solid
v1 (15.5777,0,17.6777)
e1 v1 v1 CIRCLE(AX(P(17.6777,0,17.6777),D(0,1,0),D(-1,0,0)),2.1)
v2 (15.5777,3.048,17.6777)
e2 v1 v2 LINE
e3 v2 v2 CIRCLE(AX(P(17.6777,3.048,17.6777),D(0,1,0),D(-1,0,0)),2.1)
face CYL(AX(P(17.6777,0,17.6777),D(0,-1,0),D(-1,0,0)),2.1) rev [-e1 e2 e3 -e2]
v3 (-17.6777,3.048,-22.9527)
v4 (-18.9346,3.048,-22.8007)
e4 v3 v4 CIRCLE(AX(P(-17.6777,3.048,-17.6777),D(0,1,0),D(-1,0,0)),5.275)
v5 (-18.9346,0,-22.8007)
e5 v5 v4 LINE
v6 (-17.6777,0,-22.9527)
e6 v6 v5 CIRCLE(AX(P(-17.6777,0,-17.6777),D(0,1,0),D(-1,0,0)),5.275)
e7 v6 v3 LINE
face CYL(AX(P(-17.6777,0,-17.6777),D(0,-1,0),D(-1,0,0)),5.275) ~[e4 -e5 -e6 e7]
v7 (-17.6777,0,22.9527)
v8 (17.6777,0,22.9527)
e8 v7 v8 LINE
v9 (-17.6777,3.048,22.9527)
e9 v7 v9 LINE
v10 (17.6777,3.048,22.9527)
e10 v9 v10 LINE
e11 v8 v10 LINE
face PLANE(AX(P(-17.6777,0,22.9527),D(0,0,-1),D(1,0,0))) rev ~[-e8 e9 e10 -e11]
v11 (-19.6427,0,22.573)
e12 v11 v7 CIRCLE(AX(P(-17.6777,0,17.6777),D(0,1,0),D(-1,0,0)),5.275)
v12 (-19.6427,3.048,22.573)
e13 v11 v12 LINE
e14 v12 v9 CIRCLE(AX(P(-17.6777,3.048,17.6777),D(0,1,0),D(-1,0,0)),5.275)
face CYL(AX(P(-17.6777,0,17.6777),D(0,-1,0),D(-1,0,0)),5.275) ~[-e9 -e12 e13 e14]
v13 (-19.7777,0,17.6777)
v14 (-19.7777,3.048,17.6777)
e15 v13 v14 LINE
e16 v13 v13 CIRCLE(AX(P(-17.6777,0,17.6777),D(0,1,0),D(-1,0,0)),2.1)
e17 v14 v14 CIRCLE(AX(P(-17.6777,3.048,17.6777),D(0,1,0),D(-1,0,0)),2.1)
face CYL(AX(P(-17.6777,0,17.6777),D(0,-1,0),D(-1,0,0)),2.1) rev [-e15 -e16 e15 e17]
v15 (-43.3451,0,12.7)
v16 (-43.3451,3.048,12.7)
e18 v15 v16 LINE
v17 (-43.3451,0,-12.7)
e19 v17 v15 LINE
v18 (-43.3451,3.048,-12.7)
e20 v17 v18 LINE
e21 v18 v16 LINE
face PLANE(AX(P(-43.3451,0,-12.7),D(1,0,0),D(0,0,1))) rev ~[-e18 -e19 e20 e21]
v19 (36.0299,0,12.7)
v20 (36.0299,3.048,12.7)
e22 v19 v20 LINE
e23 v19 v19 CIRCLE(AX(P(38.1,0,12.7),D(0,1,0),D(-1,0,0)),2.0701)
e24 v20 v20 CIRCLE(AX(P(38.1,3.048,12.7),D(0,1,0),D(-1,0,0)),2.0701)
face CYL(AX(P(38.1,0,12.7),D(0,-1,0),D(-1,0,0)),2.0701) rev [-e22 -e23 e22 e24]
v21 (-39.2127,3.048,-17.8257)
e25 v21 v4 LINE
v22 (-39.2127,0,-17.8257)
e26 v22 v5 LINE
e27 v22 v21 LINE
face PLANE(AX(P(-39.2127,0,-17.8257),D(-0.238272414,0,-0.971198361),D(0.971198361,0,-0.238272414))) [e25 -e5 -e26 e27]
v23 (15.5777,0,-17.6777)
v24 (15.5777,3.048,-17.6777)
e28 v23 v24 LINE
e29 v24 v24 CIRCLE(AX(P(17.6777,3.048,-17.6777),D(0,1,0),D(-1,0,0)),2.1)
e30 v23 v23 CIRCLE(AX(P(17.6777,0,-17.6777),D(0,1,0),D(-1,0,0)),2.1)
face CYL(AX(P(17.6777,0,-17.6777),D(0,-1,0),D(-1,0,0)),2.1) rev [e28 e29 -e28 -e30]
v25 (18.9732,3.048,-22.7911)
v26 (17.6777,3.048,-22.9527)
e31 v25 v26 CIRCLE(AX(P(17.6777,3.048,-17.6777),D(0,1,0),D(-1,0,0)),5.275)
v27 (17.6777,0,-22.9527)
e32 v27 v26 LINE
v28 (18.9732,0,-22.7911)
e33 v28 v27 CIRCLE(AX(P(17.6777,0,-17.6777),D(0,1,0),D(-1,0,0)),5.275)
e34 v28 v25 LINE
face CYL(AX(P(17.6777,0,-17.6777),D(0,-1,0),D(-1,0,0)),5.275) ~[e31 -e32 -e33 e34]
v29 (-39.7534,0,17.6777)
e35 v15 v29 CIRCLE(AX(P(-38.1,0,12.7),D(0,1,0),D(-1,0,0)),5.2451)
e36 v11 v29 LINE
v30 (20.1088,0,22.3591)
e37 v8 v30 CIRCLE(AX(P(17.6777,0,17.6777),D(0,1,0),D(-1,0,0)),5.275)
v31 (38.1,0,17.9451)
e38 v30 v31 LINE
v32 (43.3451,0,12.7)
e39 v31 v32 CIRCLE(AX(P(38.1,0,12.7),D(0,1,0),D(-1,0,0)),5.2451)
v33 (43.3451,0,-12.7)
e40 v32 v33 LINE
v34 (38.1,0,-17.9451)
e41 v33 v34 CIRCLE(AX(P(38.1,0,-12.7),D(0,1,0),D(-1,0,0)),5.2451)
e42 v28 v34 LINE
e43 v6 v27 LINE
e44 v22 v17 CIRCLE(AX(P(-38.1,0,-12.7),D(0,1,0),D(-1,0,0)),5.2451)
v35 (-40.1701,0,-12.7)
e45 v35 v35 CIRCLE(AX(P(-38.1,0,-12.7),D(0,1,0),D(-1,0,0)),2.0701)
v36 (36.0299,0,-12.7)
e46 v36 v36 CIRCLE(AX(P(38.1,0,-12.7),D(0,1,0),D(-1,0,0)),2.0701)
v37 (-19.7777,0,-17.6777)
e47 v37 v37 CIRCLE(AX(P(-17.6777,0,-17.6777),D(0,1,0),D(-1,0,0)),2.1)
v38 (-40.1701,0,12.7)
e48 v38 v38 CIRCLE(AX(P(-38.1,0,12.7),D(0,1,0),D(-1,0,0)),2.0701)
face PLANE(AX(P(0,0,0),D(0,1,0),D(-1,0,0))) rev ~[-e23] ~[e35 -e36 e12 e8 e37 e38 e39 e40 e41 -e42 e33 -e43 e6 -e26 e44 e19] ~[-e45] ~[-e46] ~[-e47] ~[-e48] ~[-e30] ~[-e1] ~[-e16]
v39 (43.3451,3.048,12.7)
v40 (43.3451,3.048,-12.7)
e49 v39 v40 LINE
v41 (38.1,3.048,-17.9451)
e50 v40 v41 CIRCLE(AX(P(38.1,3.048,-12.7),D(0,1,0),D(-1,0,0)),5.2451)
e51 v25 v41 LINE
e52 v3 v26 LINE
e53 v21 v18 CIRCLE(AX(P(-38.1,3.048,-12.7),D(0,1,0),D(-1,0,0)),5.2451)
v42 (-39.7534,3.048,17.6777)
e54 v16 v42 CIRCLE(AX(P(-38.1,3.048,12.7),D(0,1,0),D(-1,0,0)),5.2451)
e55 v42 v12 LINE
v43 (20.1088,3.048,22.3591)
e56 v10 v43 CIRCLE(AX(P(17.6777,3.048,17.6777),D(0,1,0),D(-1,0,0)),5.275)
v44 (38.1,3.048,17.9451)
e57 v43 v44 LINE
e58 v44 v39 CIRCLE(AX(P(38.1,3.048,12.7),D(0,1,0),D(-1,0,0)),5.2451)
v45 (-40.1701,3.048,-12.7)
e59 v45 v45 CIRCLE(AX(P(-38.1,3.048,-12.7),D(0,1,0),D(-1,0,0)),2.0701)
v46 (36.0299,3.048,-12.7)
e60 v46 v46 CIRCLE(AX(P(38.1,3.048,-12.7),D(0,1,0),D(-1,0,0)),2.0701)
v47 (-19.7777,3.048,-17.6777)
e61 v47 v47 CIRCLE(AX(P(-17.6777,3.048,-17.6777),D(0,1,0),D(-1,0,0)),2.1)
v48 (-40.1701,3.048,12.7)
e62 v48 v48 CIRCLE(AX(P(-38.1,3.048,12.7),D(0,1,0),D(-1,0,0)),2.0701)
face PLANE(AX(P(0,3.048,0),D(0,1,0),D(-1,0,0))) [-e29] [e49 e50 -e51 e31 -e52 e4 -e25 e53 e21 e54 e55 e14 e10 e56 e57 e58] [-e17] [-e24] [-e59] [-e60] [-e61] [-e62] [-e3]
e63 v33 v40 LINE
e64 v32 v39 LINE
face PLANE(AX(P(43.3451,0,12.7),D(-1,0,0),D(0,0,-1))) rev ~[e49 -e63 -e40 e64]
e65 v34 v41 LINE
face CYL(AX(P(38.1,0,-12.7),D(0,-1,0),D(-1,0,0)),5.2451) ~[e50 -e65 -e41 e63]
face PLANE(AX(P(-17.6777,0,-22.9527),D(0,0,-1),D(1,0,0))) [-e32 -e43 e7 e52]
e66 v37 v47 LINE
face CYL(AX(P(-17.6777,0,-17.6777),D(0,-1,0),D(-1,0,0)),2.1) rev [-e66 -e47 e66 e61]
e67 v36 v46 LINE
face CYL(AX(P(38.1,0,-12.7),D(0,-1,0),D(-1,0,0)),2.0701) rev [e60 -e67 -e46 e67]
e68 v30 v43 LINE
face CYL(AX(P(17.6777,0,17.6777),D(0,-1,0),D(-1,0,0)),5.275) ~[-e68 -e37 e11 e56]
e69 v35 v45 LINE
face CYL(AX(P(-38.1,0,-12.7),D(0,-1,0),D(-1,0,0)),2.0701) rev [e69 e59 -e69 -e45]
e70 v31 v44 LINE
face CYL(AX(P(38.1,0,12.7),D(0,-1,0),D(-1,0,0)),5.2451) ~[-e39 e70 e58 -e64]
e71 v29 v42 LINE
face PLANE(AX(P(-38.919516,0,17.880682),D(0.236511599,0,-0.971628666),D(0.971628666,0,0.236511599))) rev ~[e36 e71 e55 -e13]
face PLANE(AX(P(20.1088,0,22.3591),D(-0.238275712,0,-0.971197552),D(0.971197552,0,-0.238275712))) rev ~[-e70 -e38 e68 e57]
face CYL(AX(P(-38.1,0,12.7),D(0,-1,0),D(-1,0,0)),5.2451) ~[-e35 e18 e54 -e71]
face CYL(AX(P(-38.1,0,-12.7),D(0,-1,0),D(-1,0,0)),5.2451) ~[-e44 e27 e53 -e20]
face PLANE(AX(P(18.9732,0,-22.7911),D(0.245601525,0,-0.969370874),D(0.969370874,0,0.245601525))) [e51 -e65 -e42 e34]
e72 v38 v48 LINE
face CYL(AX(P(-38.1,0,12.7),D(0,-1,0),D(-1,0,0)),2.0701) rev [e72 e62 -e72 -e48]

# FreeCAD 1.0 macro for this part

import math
import FreeCAD as App
import Part
import Sketcher
Q = App.Units.Quantity

doc = App.newDocument("Part")
body = doc.addObject("PartDesign::Body", "Body")

# Sketch on XZ plane
sketch1 = body.newObject("Sketcher::SketchObject", "Sketch")
sketch1.AttachmentSupport = (doc.getObject("XZ_Plane"), [""])
sketch1.MapMode = "FlatFace"
sketch1.addGeometry([
    Part.LineSegment(App.Vector(43.3451, 12.7, 0), App.Vector(43.3451, -12.7, 0)),  # 0
    Part.ArcOfCircle(Part.Circle(App.Vector(38.1, -12.7, 0), App.Vector(0, 0, 1), 5.2451), math.radians(-90), math.radians(0)),  # 1
    Part.LineSegment(App.Vector(38.1, -17.9451, 0), App.Vector(18.9732, -22.7911, 0)),  # 2
    Part.ArcOfCircle(Part.Circle(App.Vector(17.6777, -17.6777, 0), App.Vector(0, 0, 1), 5.275), math.radians(-90), math.radians(-75.783037)),  # 3
    Part.LineSegment(App.Vector(17.6777, -22.9527, 0), App.Vector(-17.6777, -22.9527, 0)),  # 4
    Part.ArcOfCircle(Part.Circle(App.Vector(-17.6777, -17.6777, 0), App.Vector(0, 0, 1), 5.275), math.radians(-103.784921), math.radians(-90)),  # 5
    Part.LineSegment(App.Vector(-18.9346, -22.8007, 0), App.Vector(-39.2127, -17.8257, 0)),  # 6
    Part.ArcOfCircle(Part.Circle(App.Vector(-38.1, -12.7, 0), App.Vector(0, 0, 1), 5.2451), math.radians(180), math.radians(257.75212)),  # 7
    Part.LineSegment(App.Vector(-43.3451, -12.7, 0), App.Vector(-43.3451, 12.7, 0)),  # 8
    Part.ArcOfCircle(Part.Circle(App.Vector(-38.1, 12.7, 0), App.Vector(0, 0, 1), 5.2451), math.radians(108.374498), math.radians(180)),  # 9
    Part.LineSegment(App.Vector(-39.7534, 17.6777, 0), App.Vector(-19.6427, 22.573, 0)),  # 10
    Part.ArcOfCircle(Part.Circle(App.Vector(-17.6777, 17.6777, 0), App.Vector(0, 0, 1), 5.275), math.radians(90), math.radians(111.870794)),  # 11
    Part.LineSegment(App.Vector(-17.6777, 22.9527, 0), App.Vector(17.6777, 22.9527, 0)),  # 12
    Part.ArcOfCircle(Part.Circle(App.Vector(17.6777, 17.6777, 0), App.Vector(0, 0, 1), 5.275), math.radians(62.556676), math.radians(90)),  # 13
    Part.LineSegment(App.Vector(20.1088, 22.3591, 0), App.Vector(38.1, 17.9451, 0)),  # 14
    Part.ArcOfCircle(Part.Circle(App.Vector(38.1, 12.7, 0), App.Vector(0, 0, 1), 5.2451), math.radians(0), math.radians(90)),  # 15
    Part.Circle(App.Vector(38.1, 12.7, 0), App.Vector(0, 0, 1), 2.0701),  # 16
    Part.Circle(App.Vector(17.6777, 17.6777, 0), App.Vector(0, 0, 1), 2.1),  # 17
    Part.Circle(App.Vector(-17.6777, 17.6777, 0), App.Vector(0, 0, 1), 2.1),  # 18
    Part.Circle(App.Vector(-38.1, 12.7, 0), App.Vector(0, 0, 1), 2.0701),  # 19
    Part.Circle(App.Vector(-38.1, -12.7, 0), App.Vector(0, 0, 1), 2.0701),  # 20
    Part.Circle(App.Vector(-17.6777, -17.6777, 0), App.Vector(0, 0, 1), 2.1),  # 21
    Part.Circle(App.Vector(17.6777, -17.6777, 0), App.Vector(0, 0, 1), 2.1),  # 22
    Part.Circle(App.Vector(38.1, -12.7, 0), App.Vector(0, 0, 1), 2.0701),  # 23
], False)
sketch1.addConstraint([
    Sketcher.Constraint("Coincident", 0, 2, 1, 2),
    Sketcher.Constraint("Coincident", 1, 1, 2, 1),
    Sketcher.Constraint("Coincident", 2, 2, 3, 2),
    Sketcher.Constraint("Coincident", 3, 1, 4, 1),
    Sketcher.Constraint("Coincident", 4, 2, 5, 2),
    Sketcher.Constraint("Coincident", 5, 1, 6, 1),
    Sketcher.Constraint("Coincident", 6, 2, 7, 2),
    Sketcher.Constraint("Coincident", 7, 1, 8, 1),
    Sketcher.Constraint("Coincident", 8, 2, 9, 2),
    Sketcher.Constraint("Coincident", 9, 1, 10, 1),
    Sketcher.Constraint("Coincident", 10, 2, 11, 2),
    Sketcher.Constraint("Coincident", 11, 1, 12, 1),
    Sketcher.Constraint("Coincident", 12, 2, 13, 2),
    Sketcher.Constraint("Coincident", 13, 1, 14, 1),
    Sketcher.Constraint("Coincident", 14, 2, 15, 2),
    Sketcher.Constraint("Coincident", 15, 1, 0, 1),
    Sketcher.Constraint("Vertical", 0),
    Sketcher.Constraint("Horizontal", 4),
    Sketcher.Constraint("Vertical", 8),
    Sketcher.Constraint("Horizontal", 12),
    Sketcher.Constraint("Coincident", 16, 3, 15, 3),
    Sketcher.Constraint("Coincident", 17, 3, 13, 3),
    Sketcher.Constraint("Coincident", 18, 3, 11, 3),
    Sketcher.Constraint("Coincident", 19, 3, 9, 3),
    Sketcher.Constraint("Coincident", 20, 3, 7, 3),
    Sketcher.Constraint("Coincident", 21, 3, 5, 3),
    Sketcher.Constraint("Coincident", 22, 3, 3, 3),
    Sketcher.Constraint("Coincident", 23, 3, 1, 3),
    Sketcher.Constraint("DistanceY", 0, 2, 0, 1, Q("1 in")),
    Sketcher.Constraint("DistanceY", 8, 1, 8, 2, Q("1 in")),
    Sketcher.Constraint("Diameter", 16, Q("0.163 in")),
    Sketcher.Constraint("Diameter", 19, Q("0.163 in")),
    Sketcher.Constraint("Diameter", 20, Q("0.163 in")),
    Sketcher.Constraint("Diameter", 23, Q("0.163 in")),
    Sketcher.Constraint("DistanceY", 7, 3, 9, 3, Q("1 in")),
    Sketcher.Constraint("DistanceY", 1, 3, 9, 3, Q("1 in")),
    Sketcher.Constraint("DistanceY", 1, 3, 15, 3, Q("1 in")),
    Sketcher.Constraint("DistanceY", 0, 2, 15, 3, Q("1 in")),
    Sketcher.Constraint("DistanceY", 7, 1, 9, 3, Q("1 in")),
    Sketcher.Constraint("DistanceY", 1, 3, -1, 1, Q("0.5 in")),
    Sketcher.Constraint("Diameter", 17, 4.2),
    Sketcher.Constraint("Diameter", 18, 4.2),
    Sketcher.Constraint("Diameter", 21, 4.2),
    Sketcher.Constraint("Diameter", 22, 4.2),
    Sketcher.Constraint("DistanceX", 7, 3, 1, 3, Q("3 in")),
    Sketcher.Constraint("DistanceX", 9, 3, 1, 3, Q("3 in")),
    Sketcher.Constraint("DistanceX", -1, 1, 1, 3, Q("1.5 in")),
    Sketcher.Constraint("DistanceX", -1, 1, 15, 3, Q("1.5 in")),
    Sketcher.Constraint("DistanceX", -1, 1, 1, 1, Q("1.5 in")),
    Sketcher.Constraint("DistanceX", -1, 1, 14, 2, Q("1.5 in")),
    Sketcher.Constraint("Radius", 1, Q("0.2065 in")),
    Sketcher.Constraint("Radius", 7, Q("0.2065 in")),
    Sketcher.Constraint("Radius", 3, 5.275),
    Sketcher.Constraint("Radius", 5, 5.275),
    Sketcher.Constraint("Radius", 11, 5.275),
    Sketcher.Constraint("Radius", 13, 5.275),
    Sketcher.Constraint("DistanceX", 3, 3, 2, 2, Q("0.051 in")),
    Sketcher.Constraint("DistanceX", 3, 1, 2, 2, Q("0.051 in")),
    Sketcher.Constraint("DistanceX", 4, 2, 4, 1, 35.3554),
    Sketcher.Constraint("DistanceX", 12, 1, 12, 2, 35.3554),
    Sketcher.Constraint("DistanceX", 6, 2, -1, 1, Q("1.5438 in")),
    Sketcher.Constraint("DistanceX", 9, 1, -1, 1, Q("1.5651 in")),
    Sketcher.Constraint("DistanceY", -1, 1, 10, 2, Q("0.8887 in")),
    Sketcher.Constraint("DistanceY", 5, 1, 5, 3, Q("0.2017 in")),
    Sketcher.Constraint("DistanceY", 13, 3, 13, 1, Q("0.1843 in")),
    Sketcher.Constraint("Distance", 2, 19.7311),
    Sketcher.Constraint("Distance", 6, 20.8795),
    Sketcher.Constraint("Distance", 10, 20.698),
    Sketcher.Constraint("Distance", 14, 18.5248),
    Sketcher.Constraint("DistanceX", -1, 1, 3, 3, 17.6777),
    Sketcher.Constraint("DistanceX", 11, 3, -1, 1, 17.6777),
    Sketcher.Constraint("DistanceX", 11, 1, -1, 1, 17.6777),
])
pad1 = body.newObject("PartDesign::Pad", "Pad")
pad1.Profile = sketch1
pad1.Length = Q("0.12 in")
pad1.Reversed = True

doc.recompute()
